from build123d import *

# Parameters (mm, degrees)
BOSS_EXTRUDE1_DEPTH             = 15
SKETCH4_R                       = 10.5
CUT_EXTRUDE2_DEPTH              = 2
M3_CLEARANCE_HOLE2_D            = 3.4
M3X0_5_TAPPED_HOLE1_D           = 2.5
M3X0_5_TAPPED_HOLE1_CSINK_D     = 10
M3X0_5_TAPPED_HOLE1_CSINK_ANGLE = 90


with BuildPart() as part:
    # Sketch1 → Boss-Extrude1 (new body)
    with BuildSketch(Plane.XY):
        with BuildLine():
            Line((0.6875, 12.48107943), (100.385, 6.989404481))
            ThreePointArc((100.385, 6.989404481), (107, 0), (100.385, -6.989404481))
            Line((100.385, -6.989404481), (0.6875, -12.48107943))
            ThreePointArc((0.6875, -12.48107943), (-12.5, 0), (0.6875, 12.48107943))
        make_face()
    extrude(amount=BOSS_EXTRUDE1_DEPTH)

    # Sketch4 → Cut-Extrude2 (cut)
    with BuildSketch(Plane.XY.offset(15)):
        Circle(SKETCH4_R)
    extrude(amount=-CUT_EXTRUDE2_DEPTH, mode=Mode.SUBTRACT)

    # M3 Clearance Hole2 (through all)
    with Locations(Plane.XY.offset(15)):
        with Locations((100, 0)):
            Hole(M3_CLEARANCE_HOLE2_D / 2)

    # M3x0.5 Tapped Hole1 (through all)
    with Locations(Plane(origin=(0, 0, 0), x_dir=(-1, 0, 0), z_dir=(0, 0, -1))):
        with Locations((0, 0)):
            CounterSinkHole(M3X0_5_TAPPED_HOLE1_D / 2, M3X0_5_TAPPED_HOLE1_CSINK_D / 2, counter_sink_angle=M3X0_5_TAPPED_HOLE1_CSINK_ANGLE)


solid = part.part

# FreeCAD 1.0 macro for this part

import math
import FreeCAD as App
import Part
import Sketcher

V = App.Vector

doc = App.newDocument("Part")
body = doc.addObject("PartDesign::Body", "Body")

# Sketch on XY plane
sketch1 = doc.addObject("Sketcher::SketchObject", "Sketch")
body.addObject(sketch1)
sketch1.AttachmentSupport = (doc.XY_Plane, [""])
sketch1.MapMode = "FlatFace"
sketch1.addGeometry(Part.LineSegment(V(100.385, 6.989404, 0), V(0.6875, 12.481079, 0)), False)
sketch1.addGeometry(Part.ArcOfCircle(Part.Circle(V(0, 0, 0), V(0, 0, 1), 12.5), math.radians(86.847141), math.radians(273.152859)), False)
sketch1.addGeometry(Part.LineSegment(V(0.6875, -12.481079, 0), V(100.385, -6.989404, 0)), False)
sketch1.addGeometry(Part.ArcOfCircle(Part.Circle(V(100, 0, 0), V(0, 0, 1), 7), math.radians(-86.847141), math.radians(86.847141)), False)
sketch1.addConstraint(Sketcher.Constraint("Tangent", 0, 2, 1, 1))
sketch1.addConstraint(Sketcher.Constraint("Tangent", 1, 2, 2, 1))
sketch1.addConstraint(Sketcher.Constraint("Tangent", 2, 2, 3, 1))
sketch1.addConstraint(Sketcher.Constraint("Tangent", 3, 2, 0, 1))
sketch1.addConstraint(Sketcher.Constraint("Coincident", 1, 3, -1, 1))
sketch1.addConstraint(Sketcher.Constraint("PointOnObject", 3, 3, -1))
sketch1.addConstraint(Sketcher.Constraint("Radius", 3, 7.0))
sketch1.addConstraint(Sketcher.Constraint("Radius", 1, 12.5))
sketch1.addConstraint(Sketcher.Constraint("DistanceX", -1, 1, 3, 3, 100.0))
pad1 = doc.addObject("PartDesign::Pad", "Pad")
body.addObject(pad1)
pad1.Profile = sketch1
pad1.Length = 15

# Sketch on XY plane
sketch2 = doc.addObject("Sketcher::SketchObject", "Sketch001")
body.addObject(sketch2)
sketch2.AttachmentSupport = (doc.XY_Plane, [""])
sketch2.MapMode = "FlatFace"
sketch2.AttachmentOffset = App.Placement(V(0, 0, 15), App.Rotation())
sketch2.addGeometry(Part.Circle(V(0, 0, 0), V(0, 0, 1), 10.5), False)
sketch2.addConstraint(Sketcher.Constraint("Coincident", 0, 3, -1, 1))
sketch2.addConstraint(Sketcher.Constraint("Diameter", 0, 21.0))
pocket1 = doc.addObject("PartDesign::Pocket", "Pocket")
body.addObject(pocket1)
pocket1.Profile = sketch2
pocket1.Length = 2

# Sketch on XY plane
sketch3 = doc.addObject("Sketcher::SketchObject", "Sketch002")
body.addObject(sketch3)
sketch3.AttachmentSupport = (doc.XY_Plane, [""])
sketch3.MapMode = "FlatFace"
sketch3.AttachmentOffset = App.Placement(V(0, 0, 15), App.Rotation())
sketch3.addGeometry(Part.Circle(V(100, 0, 0), V(0, 0, 1), 1.7), False)
sketch3.addConstraint(Sketcher.Constraint("PointOnObject", 0, 3, -1))
sketch3.addConstraint(Sketcher.Constraint("Diameter", 0, 3.4))
sketch3.addConstraint(Sketcher.Constraint("DistanceX", -1, 1, 0, 3, 100.0))
doc.recompute()
hole = doc.addObject("PartDesign::Hole", "Hole")
body.addObject(hole)
hole.Profile = sketch3
hole.ThreadType = "None"
hole.Diameter = 3.4
hole.DepthType = "ThroughAll"

# Sketch on XY plane
sketch4 = doc.addObject("Sketcher::SketchObject", "Sketch003")
body.addObject(sketch4)
sketch4.AttachmentSupport = (doc.XY_Plane, [""])
sketch4.MapMode = "FlatFace"
sketch4.addGeometry(Part.Circle(V(0, 0, 0), V(0, 0, 1), 1.25), False)
sketch4.addConstraint(Sketcher.Constraint("Coincident", 0, 3, -1, 1))
sketch4.addConstraint(Sketcher.Constraint("Diameter", 0, 2.5))
doc.recompute()
hole2 = doc.addObject("PartDesign::Hole", "Hole001")
body.addObject(hole2)
hole2.Profile = sketch4
hole2.ThreadType = "None"
hole2.Diameter = 2.5
hole2.DepthType = "ThroughAll"
hole2.HoleCutType = "Countersink"
hole2.HoleCutDiameter = 10
hole2.HoleCutCountersinkAngle = 90
hole2.Reversed = True

doc.recompute()
